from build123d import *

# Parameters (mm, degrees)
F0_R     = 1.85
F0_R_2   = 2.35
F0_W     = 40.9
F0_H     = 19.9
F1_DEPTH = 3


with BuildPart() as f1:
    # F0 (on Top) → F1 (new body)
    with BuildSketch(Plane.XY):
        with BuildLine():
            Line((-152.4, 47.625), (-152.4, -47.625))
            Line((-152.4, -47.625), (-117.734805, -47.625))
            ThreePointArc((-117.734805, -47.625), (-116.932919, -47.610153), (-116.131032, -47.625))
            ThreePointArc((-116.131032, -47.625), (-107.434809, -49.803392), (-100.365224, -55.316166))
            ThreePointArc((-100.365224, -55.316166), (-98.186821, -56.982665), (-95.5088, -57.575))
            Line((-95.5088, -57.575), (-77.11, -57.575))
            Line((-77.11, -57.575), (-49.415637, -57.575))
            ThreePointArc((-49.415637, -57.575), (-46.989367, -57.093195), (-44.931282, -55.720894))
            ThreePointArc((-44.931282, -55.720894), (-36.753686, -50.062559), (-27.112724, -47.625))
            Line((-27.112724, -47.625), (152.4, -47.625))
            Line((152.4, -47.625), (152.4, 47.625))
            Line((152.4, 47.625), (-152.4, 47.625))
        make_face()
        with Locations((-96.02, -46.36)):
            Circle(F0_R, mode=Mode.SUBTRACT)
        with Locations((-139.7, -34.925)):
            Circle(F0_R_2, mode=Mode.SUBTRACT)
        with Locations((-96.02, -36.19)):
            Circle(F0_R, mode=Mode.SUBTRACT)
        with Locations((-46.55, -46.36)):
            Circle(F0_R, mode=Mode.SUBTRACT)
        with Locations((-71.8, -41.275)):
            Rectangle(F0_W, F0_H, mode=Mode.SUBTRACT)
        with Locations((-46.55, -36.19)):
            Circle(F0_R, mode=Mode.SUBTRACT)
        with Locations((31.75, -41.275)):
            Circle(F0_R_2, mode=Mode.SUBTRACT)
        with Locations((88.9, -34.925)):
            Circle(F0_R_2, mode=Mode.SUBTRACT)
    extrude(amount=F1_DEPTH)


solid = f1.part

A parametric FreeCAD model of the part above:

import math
import FreeCAD as App
import Part
import Sketcher

V = App.Vector

doc = App.newDocument("Part")
params = doc.addObject("Spreadsheet::Sheet", "Params")
for row, (alias, value) in enumerate([
    ("sketch1_diameter", "3.7 mm"),
    ("sketch1_diameter2", "3.7 mm"),
    ("sketch1_diameter3", "4.7 mm"),
    ("sketch1_diameter4", "4.7 mm"),
    ("sketch1_diameter5", "3.7 mm"),
    ("pad1_length", "3 mm"),
], start=1):
    params.set(f"A{row}", alias)
    params.set(f"B{row}", "=" + value)
    params.setAlias(f"B{row}", alias)

body = doc.addObject("PartDesign::Body", "Body")

# Sketch on XY plane
sketch1 = doc.addObject("Sketcher::SketchObject", "Sketch")
body.addObject(sketch1)
sketch1.AttachmentSupport = (doc.XY_Plane, [""])
sketch1.MapMode = "FlatFace"
sketch1.addGeometry([
    Part.LineSegment(V(-152.4, 47.625, 0), V(-152.4, -47.625, 0)),  # 0
    Part.LineSegment(V(-152.4, -47.625, 0), V(-117.734805, -47.625, 0)),  # 1
    Part.ArcOfCircle(Part.Circle(V(-116.932918, -69.272522, 0), V(0, 0, 1), 21.662369), math.radians(87.878569), math.radians(92.121431)),  # 2
    Part.ArcOfCircle(Part.Circle(V(-116.932918, -69.273181, 0), V(0, 0, 1), 21.663027), math.radians(40.111574), math.radians(87.878635)),  # 3
    Part.ArcOfCircle(Part.Circle(V(-95.508802, -51.225005, 0), V(0, 0, 1), 6.349995), math.radians(-139.888448), math.radians(-89.999986)),  # 4
    Part.LineSegment(V(-95.5088, -57.575, 0), V(-49.415637, -57.575, 0)),  # 5
    Part.ArcOfCircle(Part.Circle(V(-49.415638, -51.224997, 0), V(0, 0, 1), 6.350003), math.radians(-89.999993), math.radians(-45.073633)),  # 6
    Part.ArcOfCircle(Part.Circle(V(-25.190454, -75.512511, 0), V(0, 0, 1), 27.953683), math.radians(93.943128), math.radians(134.926389)),  # 7
    Part.LineSegment(V(-27.112724, -47.625, 0), V(152.4, -47.625, 0)),  # 8
    Part.LineSegment(V(152.4, -47.625, 0), V(152.4, 47.625, 0)),  # 9
    Part.LineSegment(V(152.4, 47.625, 0), V(-152.4, 47.625, 0)),  # 10
    Part.Circle(V(-96.02, -46.36, 0), V(0, 0, 1), 1.85),  # 11
    Part.Circle(V(-46.55, -46.36, 0), V(0, 0, 1), 1.85),  # 12
    Part.LineSegment(V(-51.35, -51.225, 0), V(-92.25, -51.225, 0)),  # 13
    Part.LineSegment(V(-92.25, -51.225, 0), V(-92.25, -31.325, 0)),  # 14
    Part.LineSegment(V(-92.25, -31.325, 0), V(-51.35, -31.325, 0)),  # 15
    Part.LineSegment(V(-51.35, -31.325, 0), V(-51.35, -51.225, 0)),  # 16
    Part.Circle(V(31.75, -41.275, 0), V(0, 0, 1), 2.35),  # 17
    Part.Circle(V(-139.7, -34.925, 0), V(0, 0, 1), 2.35),  # 18
    Part.Circle(V(-96.02, -36.19, 0), V(0, 0, 1), 1.85),  # 19
    Part.Circle(V(-46.55, -36.19, 0), V(0, 0, 1), 1.85),  # 20
    Part.Circle(V(88.9, -34.925, 0), V(0, 0, 1), 2.35),  # 21
], False)
sketch1.addConstraint([
    Sketcher.Constraint("Coincident", 0, 2, 1, 1),
    Sketcher.Constraint("Coincident", 1, 2, 2, 2),
    Sketcher.Constraint("Coincident", 2, 1, 3, 2),
    Sketcher.Constraint("Coincident", 3, 1, 4, 1),
    Sketcher.Constraint("Coincident", 4, 2, 5, 1),
    Sketcher.Constraint("Coincident", 5, 2, 6, 1),
    Sketcher.Constraint("Coincident", 6, 2, 7, 2),
    Sketcher.Constraint("Coincident", 7, 1, 8, 1),
    Sketcher.Constraint("Coincident", 8, 2, 9, 1),
    Sketcher.Constraint("Coincident", 9, 2, 10, 1),
    Sketcher.Constraint("Coincident", 10, 2, 0, 1),
    Sketcher.Constraint("Coincident", 13, 2, 14, 1),
    Sketcher.Constraint("Coincident", 14, 2, 15, 1),
    Sketcher.Constraint("Coincident", 15, 2, 16, 1),
    Sketcher.Constraint("Coincident", 16, 2, 13, 1),
    Sketcher.Constraint("Vertical", 0),
    Sketcher.Constraint("Horizontal", 1),
    Sketcher.Constraint("Horizontal", 5),
    Sketcher.Constraint("Horizontal", 8),
    Sketcher.Constraint("Vertical", 9),
    Sketcher.Constraint("Horizontal", 10),
    Sketcher.Constraint("Horizontal", 13),
    Sketcher.Constraint("Vertical", 14),
    Sketcher.Constraint("Horizontal", 15),
    Sketcher.Constraint("Vertical", 16),
    Sketcher.Constraint("Diameter", 11, 3.7),
    Sketcher.Constraint("Diameter", 12, 3.7),
    Sketcher.Constraint("Diameter", 17, 4.7),
    Sketcher.Constraint("Diameter", 18, 4.7),
    Sketcher.Constraint("Diameter", 19, 3.7),
    Sketcher.Constraint("Diameter", 20, 3.7),
    Sketcher.Constraint("Diameter", 21, 4.7),
    Sketcher.Constraint("DistanceX", 10, 2, 10, 1, 304.8),
    Sketcher.Constraint("DistanceX", 13, 2, 13, 1, 40.9),
    Sketcher.Constraint("DistanceY", 14, 1, 14, 2, 19.9),
    Sketcher.Constraint("DistanceY", 0, 2, 0, 1, 95.25),
    Sketcher.Constraint("DistanceY", 9, 1, 9, 2, 95.25),
    Sketcher.Constraint("DistanceX", 18, 3, -1, 1, 139.7),
    Sketcher.Constraint("DistanceX", -1, 1, 21, 3, 88.9),
    Sketcher.Constraint("DistanceX", 0, 2, -1, 1, 152.4),
    Sketcher.Constraint("DistanceX", 12, 3, 17, 3, 78.3),
    Sketcher.Constraint("DistanceY", 0, 2, 18, 3, 12.7),
    Sketcher.Constraint("DistanceY", 8, 2, 21, 3, 12.7),
    Sketcher.Constraint("DistanceY", 17, 3, 9, 2, 88.9),
    Sketcher.Constraint("DistanceX", 15, 2, 20, 3, 4.8),
    Sketcher.Constraint("DistanceX", 15, 2, 12, 3, 4.8),
    Sketcher.Constraint("DistanceX", 11, 3, -1, 1, 96.02),
    Sketcher.Constraint("DistanceY", 11, 3, -1, 1, 46.36),
    Sketcher.Constraint("DistanceX", 12, 3, -1, 1, 46.55),
    Sketcher.Constraint("DistanceY", 12, 3, -1, 1, 46.36),
    Sketcher.Constraint("DistanceX", 19, 3, -1, 1, 96.02),
    Sketcher.Constraint("DistanceY", 19, 3, -1, 1, 36.19),
    Sketcher.Constraint("DistanceY", 20, 3, -1, 1, 36.19),
    Sketcher.Constraint("Radius", 2, 21.662369),
    Sketcher.Constraint("DistanceY", 4, 2, 2, 1, 9.95),
    Sketcher.Constraint("DistanceY", 5, 2, 7, 1, 9.95),
    Sketcher.Constraint("DistanceY", 4, 2, 13, 2, 6.35),
    Sketcher.Constraint("DistanceY", 17, 3, -1, 1, 41.275),
    Sketcher.Constraint("Radius", 3, 21.663027),
    Sketcher.Constraint("Radius", 4, 6.349995),
    Sketcher.Constraint("Radius", 6, 6.350003),
    Sketcher.Constraint("Radius", 7, 27.953683),
    Sketcher.Constraint("DistanceX", 4, 3, -1, 1, 95.508802),
    Sketcher.Constraint("DistanceX", 4, 2, -1, 1, 95.5088),
    Sketcher.Constraint("DistanceX", 1, 1, 1, 2, 34.665195),
    Sketcher.Constraint("DistanceX", 5, 1, 5, 2, 46.093163),
    Sketcher.Constraint("DistanceX", 8, 1, 8, 2, 179.512724),
    Sketcher.Constraint("DistanceX", 2, 3, -1, 1, 116.932918),
    Sketcher.Constraint("DistanceY", 7, 3, -1, 1, 75.512511),
    Sketcher.Constraint("DistanceY", 3, 1, 4, 3, 4.091161),
    Sketcher.Constraint("DistanceX", 6, 2, 7, 3, 19.740828),
])
sketch1.setExpression("Constraints[25]", "Params.sketch1_diameter")
sketch1.setExpression("Constraints[26]", "Params.sketch1_diameter2")
sketch1.setExpression("Constraints[27]", "Params.sketch1_diameter3")
sketch1.setExpression("Constraints[28]", "Params.sketch1_diameter4")
sketch1.setExpression("Constraints[29]", "Params.sketch1_diameter5")
pad1 = doc.addObject("PartDesign::Pad", "Pad")
body.addObject(pad1)
pad1.Profile = sketch1
pad1.setExpression("Length", "Params.pad1_length")

doc.recompute()
